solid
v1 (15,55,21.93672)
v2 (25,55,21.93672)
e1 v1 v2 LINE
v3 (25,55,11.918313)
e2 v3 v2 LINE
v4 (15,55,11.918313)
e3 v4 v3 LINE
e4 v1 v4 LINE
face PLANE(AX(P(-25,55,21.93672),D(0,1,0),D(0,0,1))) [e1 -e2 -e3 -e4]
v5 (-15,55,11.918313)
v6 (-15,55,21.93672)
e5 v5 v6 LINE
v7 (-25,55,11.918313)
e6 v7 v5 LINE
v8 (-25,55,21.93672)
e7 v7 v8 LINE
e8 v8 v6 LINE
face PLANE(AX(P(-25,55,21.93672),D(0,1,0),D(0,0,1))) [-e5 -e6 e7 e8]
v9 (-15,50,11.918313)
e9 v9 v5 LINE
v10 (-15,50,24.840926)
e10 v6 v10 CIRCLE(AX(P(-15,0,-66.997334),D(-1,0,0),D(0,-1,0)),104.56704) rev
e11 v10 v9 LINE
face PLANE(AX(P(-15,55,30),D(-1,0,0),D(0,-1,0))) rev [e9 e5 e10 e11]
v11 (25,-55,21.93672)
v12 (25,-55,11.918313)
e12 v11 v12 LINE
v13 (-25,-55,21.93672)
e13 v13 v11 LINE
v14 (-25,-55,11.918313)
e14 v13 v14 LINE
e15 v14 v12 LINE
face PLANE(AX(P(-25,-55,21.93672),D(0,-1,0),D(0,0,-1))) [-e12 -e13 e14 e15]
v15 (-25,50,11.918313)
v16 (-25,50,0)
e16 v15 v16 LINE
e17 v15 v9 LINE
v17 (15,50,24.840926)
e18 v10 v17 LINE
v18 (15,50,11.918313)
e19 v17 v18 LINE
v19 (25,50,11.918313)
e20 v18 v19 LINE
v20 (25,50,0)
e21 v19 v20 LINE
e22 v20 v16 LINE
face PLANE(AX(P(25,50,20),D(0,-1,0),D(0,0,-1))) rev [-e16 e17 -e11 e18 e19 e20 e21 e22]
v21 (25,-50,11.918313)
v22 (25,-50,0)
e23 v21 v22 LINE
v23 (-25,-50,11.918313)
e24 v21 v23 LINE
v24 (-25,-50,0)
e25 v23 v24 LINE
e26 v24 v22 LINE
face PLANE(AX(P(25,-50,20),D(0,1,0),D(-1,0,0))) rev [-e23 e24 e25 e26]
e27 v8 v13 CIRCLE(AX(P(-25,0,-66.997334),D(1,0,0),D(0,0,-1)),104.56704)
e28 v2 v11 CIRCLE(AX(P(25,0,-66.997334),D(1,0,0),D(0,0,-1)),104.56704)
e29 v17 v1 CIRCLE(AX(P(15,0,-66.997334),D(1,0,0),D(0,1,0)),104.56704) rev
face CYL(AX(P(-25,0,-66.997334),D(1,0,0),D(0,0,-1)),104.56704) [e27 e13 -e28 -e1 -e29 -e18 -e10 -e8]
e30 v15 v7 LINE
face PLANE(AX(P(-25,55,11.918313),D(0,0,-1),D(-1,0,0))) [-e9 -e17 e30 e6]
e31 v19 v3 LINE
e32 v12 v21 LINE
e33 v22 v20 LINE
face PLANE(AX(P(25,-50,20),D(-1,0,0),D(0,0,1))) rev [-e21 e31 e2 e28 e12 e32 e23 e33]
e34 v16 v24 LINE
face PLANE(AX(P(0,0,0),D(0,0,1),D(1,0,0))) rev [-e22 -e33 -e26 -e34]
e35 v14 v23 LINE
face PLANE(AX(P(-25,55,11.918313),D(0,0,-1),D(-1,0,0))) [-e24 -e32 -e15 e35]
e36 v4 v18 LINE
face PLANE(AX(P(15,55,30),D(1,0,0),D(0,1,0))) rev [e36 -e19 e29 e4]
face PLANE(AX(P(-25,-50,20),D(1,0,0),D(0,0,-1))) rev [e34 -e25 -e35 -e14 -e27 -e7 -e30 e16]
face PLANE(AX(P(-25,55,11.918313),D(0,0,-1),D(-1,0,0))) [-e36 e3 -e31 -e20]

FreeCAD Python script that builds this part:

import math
import FreeCAD as App
import Part
import Sketcher
from FreeCAD import Vector
Q = App.Units.Quantity


def add_polygon(sketch, points):
    """Adds a closed chain of lines whose ends are joined by coincident constraints."""
    first, n = sketch.GeometryCount, len(points)
    for a, b in zip(points, points[1:] + points[:1]):
        sketch.addGeometry(Part.LineSegment(App.Vector(*a, 0), App.Vector(*b, 0)), False)
    for i in range(n):
        sketch.addConstraint(Sketcher.Constraint("Coincident", first + i, 2, first + (i + 1) % n, 1))

doc = App.newDocument("Part")
body = doc.addObject("PartDesign::Body", "Body")

sketch1 = body.newObject("Sketcher::SketchObject", "Sketch")
sketch1.AttachmentSupport = (doc.getObject("XY_Plane"), [""])
sketch1.MapMode = "FlatFace"
add_polygon(sketch1, [(-25, 50), (-25, -50), (25, -50), (25, 50)])
sketch1.addConstraint([
    Sketcher.Constraint("Vertical", 0),
    Sketcher.Constraint("Horizontal", 1),
    Sketcher.Constraint("Vertical", 2),
    Sketcher.Constraint("Horizontal", 3),
    Sketcher.Constraint("Symmetric", 0, 2, 2, 2, -1, 1),
    Sketcher.Constraint("DistanceX", 1, 1, 1, 2, Q("50 mm")),
    Sketcher.Constraint("DistanceY", 0, 2, 0, 1, Q("100 mm")),
])
pad1 = body.newObject("PartDesign::Pad", "Pad")
pad1.Profile = sketch1
pad1.Length = 20

sketch2 = body.newObject("Sketcher::SketchObject", "Sketch001")
sketch2.AttachmentSupport = (doc.getObject("YZ_Plane"), [""])
sketch2.MapMode = "FlatFace"
sketch2.AttachmentOffset = App.Placement(Vector(0, 0, 25), App.Rotation())
sketch2.addGeometry([
    Part.LineSegment(Vector(-55, 12, 0), Vector(55, 12, 0)),
    Part.LineSegment(Vector(55, 12, 0), Vector(55, 22, 0)),
    Part.ArcOfCircle(Part.Circle(Vector(0, -67, 0), Vector(0, 0, 1), 105), math.radians(58), math.radians(122)),
    Part.LineSegment(Vector(-55, 22, 0), Vector(-55, 12, 0)),
], False)
sketch2.addConstraint([
    Sketcher.Constraint("Coincident", 0, 2, 1, 1),
    Sketcher.Constraint("Coincident", 1, 2, 2, 1),
    Sketcher.Constraint("Coincident", 2, 2, 3, 1),
    Sketcher.Constraint("Coincident", 3, 2, 0, 1),
    Sketcher.Constraint("Horizontal", 0),
    Sketcher.Constraint("Vertical", 1),
    Sketcher.Constraint("Vertical", 3),
    Sketcher.Constraint("Symmetric", 1, 2, 2, 2, -2),
    Sketcher.Constraint("DistanceX", 0, 1, 0, 2, Q("110 mm")),
    Sketcher.Constraint("Radius", 2, Q("104.56704 mm")),
    Sketcher.Constraint("DistanceY", 1, 1, 1, 2, Q("10.018407 mm")),
    Sketcher.Constraint("DistanceY", -1, 1, 1, 2, Q("21.93672 mm")),
])
pad2 = body.newObject("PartDesign::Pad", "Pad001")
pad2.Profile = sketch2
pad2.Length = 50
pad2.Reversed = True

sketch3 = body.newObject("Sketcher::SketchObject", "Sketch002")
sketch3.AttachmentSupport = (doc.getObject("XY_Plane"), [""])
sketch3.MapMode = "FlatFace"
add_polygon(sketch3, [(15, 55), (15, 50), (-15, 50), (-15, 55)])
sketch3.addConstraint([
    Sketcher.Constraint("Vertical", 0),
    Sketcher.Constraint("Horizontal", 1),
    Sketcher.Constraint("Vertical", 2),
    Sketcher.Constraint("Horizontal", 3),
    Sketcher.Constraint("DistanceX", 1, 2, 1, 1, Q("30 mm")),
    Sketcher.Constraint("DistanceY", 0, 2, 0, 1, Q("5 mm")),
    Sketcher.Constraint("DistanceX", -1, 1, 0, 2, Q("15 mm")),
    Sketcher.Constraint("DistanceY", -1, 1, 0, 2, Q("50 mm")),
])
pocket1 = body.newObject("PartDesign::Pocket", "Pocket")
pocket1.Profile = sketch3
pocket1.Length = 30
pocket1.Reversed = True

doc.recompute()
